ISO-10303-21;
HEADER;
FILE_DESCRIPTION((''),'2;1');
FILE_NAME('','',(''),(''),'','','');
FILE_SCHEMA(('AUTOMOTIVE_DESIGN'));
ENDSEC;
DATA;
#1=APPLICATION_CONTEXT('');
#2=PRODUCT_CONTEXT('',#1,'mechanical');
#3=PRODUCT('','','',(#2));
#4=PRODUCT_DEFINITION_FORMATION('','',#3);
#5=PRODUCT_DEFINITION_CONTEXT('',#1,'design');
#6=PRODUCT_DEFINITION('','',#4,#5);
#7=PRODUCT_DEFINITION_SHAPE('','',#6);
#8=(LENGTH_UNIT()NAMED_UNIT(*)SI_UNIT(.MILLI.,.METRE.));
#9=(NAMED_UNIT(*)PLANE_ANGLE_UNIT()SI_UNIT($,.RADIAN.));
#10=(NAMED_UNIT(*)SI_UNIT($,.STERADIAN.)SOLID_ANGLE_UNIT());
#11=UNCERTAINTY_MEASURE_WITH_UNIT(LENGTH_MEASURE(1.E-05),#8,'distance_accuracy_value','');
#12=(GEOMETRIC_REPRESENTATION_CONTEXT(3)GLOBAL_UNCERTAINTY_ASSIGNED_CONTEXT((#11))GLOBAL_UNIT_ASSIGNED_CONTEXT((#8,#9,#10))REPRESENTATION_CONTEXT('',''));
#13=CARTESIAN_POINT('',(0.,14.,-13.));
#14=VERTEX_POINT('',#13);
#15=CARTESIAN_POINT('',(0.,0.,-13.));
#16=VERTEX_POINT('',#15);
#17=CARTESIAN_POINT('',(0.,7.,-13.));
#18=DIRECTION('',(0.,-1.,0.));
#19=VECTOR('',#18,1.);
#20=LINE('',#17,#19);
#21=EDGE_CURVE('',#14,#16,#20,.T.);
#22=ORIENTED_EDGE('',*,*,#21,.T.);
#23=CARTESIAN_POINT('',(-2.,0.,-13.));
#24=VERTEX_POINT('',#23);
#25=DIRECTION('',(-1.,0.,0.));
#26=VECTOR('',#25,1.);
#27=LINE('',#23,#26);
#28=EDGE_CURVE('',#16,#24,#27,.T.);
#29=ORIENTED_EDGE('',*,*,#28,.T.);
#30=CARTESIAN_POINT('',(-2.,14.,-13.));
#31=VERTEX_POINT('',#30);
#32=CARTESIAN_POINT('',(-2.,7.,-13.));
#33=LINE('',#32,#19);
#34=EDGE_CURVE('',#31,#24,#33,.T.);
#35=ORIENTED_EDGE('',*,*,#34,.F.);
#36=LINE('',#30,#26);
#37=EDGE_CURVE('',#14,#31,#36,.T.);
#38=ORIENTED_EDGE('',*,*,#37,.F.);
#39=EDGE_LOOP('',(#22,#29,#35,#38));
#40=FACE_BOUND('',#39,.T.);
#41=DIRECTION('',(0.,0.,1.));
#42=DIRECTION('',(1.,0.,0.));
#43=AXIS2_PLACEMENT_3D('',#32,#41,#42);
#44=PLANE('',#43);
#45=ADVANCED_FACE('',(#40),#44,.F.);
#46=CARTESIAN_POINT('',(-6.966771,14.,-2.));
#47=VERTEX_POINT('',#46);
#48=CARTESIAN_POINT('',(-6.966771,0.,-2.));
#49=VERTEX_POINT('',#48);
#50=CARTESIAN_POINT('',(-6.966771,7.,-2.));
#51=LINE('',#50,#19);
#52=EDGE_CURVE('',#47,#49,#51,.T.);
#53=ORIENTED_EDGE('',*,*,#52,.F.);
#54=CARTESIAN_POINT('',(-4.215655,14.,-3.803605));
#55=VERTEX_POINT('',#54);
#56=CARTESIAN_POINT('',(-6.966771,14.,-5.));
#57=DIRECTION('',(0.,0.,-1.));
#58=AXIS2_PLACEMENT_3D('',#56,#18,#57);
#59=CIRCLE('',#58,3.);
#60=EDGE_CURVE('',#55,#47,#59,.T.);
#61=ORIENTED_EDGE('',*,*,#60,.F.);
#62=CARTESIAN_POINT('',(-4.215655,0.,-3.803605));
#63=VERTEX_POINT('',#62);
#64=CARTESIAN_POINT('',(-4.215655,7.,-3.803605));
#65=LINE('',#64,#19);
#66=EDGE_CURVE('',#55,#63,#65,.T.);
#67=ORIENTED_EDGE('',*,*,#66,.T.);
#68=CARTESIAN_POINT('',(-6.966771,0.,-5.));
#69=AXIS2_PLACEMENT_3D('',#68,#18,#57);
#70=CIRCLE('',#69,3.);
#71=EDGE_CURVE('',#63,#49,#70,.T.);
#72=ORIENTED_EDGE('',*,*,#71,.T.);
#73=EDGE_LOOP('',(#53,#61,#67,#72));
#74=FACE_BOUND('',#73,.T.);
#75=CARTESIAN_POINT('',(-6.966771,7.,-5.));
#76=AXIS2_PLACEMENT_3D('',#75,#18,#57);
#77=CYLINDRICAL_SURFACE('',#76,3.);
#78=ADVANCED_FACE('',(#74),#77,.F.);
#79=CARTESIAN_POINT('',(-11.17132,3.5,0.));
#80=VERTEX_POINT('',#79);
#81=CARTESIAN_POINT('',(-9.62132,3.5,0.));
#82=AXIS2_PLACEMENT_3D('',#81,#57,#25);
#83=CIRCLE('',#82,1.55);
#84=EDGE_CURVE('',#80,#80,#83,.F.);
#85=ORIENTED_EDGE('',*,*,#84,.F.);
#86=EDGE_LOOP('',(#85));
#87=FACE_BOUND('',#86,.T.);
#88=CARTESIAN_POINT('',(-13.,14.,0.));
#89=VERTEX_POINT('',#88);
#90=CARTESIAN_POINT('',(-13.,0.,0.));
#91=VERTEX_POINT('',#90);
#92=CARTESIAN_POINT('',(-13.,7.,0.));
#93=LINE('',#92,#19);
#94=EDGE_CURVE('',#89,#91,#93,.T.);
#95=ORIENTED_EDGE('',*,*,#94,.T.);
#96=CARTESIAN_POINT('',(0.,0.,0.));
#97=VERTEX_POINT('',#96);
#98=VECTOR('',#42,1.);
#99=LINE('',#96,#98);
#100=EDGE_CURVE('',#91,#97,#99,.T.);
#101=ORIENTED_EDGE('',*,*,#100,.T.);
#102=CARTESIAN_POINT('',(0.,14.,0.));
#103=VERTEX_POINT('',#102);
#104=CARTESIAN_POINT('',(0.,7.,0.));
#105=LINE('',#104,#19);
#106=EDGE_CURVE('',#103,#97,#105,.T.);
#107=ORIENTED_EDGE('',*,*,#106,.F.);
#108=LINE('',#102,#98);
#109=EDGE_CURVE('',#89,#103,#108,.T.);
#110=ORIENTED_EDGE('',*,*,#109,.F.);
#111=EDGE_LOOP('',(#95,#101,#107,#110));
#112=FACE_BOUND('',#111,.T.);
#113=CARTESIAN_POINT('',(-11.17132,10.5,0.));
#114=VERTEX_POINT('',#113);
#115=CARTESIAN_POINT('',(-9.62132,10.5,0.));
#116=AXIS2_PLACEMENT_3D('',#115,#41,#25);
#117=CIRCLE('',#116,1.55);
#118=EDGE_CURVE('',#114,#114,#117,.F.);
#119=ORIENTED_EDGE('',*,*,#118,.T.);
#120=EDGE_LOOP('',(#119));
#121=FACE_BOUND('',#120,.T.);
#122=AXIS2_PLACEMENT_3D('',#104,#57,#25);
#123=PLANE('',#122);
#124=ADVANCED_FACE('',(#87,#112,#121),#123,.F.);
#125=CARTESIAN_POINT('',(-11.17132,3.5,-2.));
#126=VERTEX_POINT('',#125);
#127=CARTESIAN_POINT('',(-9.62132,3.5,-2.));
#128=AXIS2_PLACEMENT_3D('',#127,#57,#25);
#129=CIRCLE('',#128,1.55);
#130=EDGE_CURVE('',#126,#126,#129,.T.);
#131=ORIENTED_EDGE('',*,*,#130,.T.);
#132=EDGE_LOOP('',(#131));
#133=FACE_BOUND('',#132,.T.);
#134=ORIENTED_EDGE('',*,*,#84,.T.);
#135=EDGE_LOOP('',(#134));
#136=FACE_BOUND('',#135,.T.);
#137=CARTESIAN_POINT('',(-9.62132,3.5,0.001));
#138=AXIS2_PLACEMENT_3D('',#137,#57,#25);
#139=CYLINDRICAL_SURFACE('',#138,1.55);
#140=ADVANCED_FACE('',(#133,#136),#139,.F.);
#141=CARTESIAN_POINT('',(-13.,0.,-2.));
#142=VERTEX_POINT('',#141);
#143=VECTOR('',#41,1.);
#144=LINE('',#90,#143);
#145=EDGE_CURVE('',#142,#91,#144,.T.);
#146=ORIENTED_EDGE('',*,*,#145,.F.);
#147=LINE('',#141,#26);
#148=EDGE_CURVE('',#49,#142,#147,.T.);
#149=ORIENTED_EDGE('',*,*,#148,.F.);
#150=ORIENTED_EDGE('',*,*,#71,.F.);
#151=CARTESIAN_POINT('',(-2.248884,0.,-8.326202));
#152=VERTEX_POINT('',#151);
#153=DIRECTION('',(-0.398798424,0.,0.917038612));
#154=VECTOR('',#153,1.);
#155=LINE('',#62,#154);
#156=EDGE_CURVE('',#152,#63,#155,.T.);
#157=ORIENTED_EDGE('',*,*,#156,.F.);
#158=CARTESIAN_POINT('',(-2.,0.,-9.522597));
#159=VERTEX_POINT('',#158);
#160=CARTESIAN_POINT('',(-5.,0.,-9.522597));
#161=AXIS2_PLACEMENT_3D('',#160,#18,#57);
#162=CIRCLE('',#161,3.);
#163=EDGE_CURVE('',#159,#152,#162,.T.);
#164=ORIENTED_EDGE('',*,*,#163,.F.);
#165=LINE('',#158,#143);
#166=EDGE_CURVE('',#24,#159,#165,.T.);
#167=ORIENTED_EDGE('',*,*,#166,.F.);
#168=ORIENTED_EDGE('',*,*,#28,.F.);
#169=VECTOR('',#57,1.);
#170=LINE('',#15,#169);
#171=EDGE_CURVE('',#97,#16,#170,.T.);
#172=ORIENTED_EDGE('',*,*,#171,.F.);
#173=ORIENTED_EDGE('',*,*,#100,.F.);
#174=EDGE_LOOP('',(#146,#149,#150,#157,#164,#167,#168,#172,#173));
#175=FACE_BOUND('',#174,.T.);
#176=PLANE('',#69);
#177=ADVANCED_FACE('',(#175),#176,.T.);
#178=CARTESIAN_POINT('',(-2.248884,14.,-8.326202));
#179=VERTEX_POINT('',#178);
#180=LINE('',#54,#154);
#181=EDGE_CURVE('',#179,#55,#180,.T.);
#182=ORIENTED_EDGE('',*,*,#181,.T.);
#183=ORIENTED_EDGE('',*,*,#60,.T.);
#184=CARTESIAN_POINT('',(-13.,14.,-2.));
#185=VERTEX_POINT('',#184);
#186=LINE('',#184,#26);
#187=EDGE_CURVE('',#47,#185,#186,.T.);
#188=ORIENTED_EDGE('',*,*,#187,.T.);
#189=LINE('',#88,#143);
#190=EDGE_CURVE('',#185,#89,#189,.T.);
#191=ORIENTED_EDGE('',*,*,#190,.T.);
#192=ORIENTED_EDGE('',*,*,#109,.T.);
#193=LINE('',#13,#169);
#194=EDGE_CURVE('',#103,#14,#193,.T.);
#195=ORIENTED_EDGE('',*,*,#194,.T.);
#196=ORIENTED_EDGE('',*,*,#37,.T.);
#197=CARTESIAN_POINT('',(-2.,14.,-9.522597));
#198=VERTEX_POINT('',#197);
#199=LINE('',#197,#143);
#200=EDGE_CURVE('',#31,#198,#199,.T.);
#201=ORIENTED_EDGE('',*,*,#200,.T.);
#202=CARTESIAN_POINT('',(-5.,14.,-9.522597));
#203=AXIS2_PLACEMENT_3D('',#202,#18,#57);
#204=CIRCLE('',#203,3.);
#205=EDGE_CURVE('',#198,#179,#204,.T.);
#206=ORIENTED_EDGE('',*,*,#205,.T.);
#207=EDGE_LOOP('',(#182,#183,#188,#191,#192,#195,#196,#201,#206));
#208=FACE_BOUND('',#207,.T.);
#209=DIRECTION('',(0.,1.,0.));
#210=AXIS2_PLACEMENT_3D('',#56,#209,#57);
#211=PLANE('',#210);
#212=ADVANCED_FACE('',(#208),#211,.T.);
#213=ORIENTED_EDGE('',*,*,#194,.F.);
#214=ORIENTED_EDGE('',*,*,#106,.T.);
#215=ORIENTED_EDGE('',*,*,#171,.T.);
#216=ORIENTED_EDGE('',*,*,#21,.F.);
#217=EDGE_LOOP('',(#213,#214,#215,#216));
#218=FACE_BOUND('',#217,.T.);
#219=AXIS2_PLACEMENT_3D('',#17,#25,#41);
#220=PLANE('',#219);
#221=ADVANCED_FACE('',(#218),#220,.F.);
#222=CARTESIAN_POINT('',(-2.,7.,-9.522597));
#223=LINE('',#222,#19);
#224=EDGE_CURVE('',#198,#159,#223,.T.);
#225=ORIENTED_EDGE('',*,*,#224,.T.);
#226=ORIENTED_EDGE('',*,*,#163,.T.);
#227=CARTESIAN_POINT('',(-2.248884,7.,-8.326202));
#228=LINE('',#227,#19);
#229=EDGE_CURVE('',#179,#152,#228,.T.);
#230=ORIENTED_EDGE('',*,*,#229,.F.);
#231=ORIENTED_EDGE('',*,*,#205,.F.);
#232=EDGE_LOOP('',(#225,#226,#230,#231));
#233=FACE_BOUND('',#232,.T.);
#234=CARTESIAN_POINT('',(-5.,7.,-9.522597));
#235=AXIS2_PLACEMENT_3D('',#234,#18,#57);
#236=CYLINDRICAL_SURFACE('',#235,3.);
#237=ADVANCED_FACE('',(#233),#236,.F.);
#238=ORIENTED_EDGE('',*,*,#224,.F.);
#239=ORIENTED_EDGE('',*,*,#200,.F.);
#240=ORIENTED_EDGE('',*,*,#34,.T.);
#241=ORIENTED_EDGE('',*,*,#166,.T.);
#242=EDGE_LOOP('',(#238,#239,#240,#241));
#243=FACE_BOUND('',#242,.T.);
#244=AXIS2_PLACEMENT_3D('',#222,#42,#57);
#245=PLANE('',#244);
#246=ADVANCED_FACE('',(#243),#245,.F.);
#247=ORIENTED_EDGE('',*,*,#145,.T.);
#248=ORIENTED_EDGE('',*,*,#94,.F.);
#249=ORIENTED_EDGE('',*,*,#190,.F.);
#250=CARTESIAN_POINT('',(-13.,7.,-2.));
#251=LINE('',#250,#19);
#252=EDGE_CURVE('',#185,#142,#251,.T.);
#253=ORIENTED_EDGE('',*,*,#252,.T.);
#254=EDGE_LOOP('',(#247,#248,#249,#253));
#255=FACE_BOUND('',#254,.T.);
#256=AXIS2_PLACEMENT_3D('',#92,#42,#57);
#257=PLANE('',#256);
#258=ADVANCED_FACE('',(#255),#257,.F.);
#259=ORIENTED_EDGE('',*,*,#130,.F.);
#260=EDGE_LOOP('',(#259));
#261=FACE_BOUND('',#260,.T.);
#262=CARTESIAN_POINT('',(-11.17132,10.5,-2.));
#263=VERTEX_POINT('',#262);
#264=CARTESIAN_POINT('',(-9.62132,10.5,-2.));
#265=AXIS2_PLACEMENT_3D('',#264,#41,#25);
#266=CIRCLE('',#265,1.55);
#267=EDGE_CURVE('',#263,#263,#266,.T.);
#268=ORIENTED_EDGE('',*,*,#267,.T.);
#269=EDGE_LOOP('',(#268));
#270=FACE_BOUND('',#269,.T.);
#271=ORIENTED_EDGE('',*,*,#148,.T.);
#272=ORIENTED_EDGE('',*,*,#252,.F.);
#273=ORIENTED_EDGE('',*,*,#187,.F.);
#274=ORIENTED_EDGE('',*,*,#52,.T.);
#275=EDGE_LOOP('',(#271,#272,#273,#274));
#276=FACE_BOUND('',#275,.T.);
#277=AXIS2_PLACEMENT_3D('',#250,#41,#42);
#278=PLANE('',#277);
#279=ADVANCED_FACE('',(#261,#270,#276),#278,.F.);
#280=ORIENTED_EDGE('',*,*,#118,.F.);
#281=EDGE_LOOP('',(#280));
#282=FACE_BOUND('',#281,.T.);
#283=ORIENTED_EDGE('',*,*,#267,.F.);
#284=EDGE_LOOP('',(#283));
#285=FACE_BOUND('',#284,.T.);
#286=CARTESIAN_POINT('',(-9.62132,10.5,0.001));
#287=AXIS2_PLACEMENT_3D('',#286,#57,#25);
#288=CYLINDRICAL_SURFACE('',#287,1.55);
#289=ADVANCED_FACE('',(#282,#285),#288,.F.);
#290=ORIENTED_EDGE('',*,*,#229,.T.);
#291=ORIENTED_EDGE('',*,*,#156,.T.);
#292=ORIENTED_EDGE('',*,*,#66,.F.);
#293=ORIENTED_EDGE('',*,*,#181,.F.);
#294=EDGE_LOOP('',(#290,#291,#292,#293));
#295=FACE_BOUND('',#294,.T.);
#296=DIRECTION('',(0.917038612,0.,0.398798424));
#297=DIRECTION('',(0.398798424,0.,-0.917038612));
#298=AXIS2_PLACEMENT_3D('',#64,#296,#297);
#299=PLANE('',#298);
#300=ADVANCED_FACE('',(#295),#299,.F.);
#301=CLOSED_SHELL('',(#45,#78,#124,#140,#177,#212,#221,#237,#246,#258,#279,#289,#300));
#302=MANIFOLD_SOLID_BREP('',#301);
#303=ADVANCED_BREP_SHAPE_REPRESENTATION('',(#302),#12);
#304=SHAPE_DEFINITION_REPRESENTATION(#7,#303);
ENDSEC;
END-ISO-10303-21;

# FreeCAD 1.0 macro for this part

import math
import FreeCAD as App
import Part
import Sketcher

V = App.Vector
Q = App.Units.Quantity

doc = App.newDocument("Part")
body = doc.addObject("PartDesign::Body", "Body")

sketch1 = body.newObject("Sketcher::SketchObject", "Sketch")
sketch1.AttachmentSupport = (doc.getObject("XZ_Plane"), [""])
sketch1.MapMode = "FlatFace"
sketch1.addGeometry([
    Part.LineSegment(V(-13, 0, 0), V(0, 0, 0)),
    Part.LineSegment(V(0, 0, 0), V(0, -13, 0)),
    Part.LineSegment(V(0, -13, 0), V(-2, -13, 0)),
    Part.LineSegment(V(-2, -13, 0), V(-2, -9.522597, 0)),
    Part.ArcOfCircle(Part.Circle(V(-5, -9.522597, 0), V(0, 0, 1), 3), math.radians(0), math.radians(23.503084)),
    Part.LineSegment(V(-2.248884, -8.326202, 0), V(-4.215655, -3.803605, 0)),
    Part.ArcOfCircle(Part.Circle(V(-6.966771, -5, 0), V(0, 0, 1), 3), math.radians(23.503084), math.radians(90)),
    Part.LineSegment(V(-6.966771, -2, 0), V(-13, -2, 0)),
    Part.LineSegment(V(-13, -2, 0), V(-13, 0, 0)),
], False)
sketch1.addConstraint([
    Sketcher.Constraint("Coincident", 0, 2, 1, 1),
    Sketcher.Constraint("Coincident", 1, 2, 2, 1),
    Sketcher.Constraint("Coincident", 2, 2, 3, 1),
    Sketcher.Constraint("Tangent", 3, 2, 4, 1),
    Sketcher.Constraint("Tangent", 4, 2, 5, 1),
    Sketcher.Constraint("Tangent", 5, 2, 6, 1),
    Sketcher.Constraint("Tangent", 6, 2, 7, 1),
    Sketcher.Constraint("Coincident", 7, 2, 8, 1),
    Sketcher.Constraint("Coincident", 8, 2, 0, 1),
    Sketcher.Constraint("Horizontal", 0),
    Sketcher.Constraint("Vertical", 1),
    Sketcher.Constraint("Horizontal", 2),
    Sketcher.Constraint("Vertical", 3),
    Sketcher.Constraint("Horizontal", 7),
    Sketcher.Constraint("Vertical", 8),
    Sketcher.Constraint("Coincident", 0, 2, -1, 1),
    Sketcher.Constraint("Equal", 4, 6),
    Sketcher.Constraint("Equal", 0, 1),
    Sketcher.Constraint("Equal", 2, 8),
    Sketcher.Constraint("Radius", 4, Q("3 mm")),
    Sketcher.Constraint("DistanceX", 0, 1, 0, 2, Q("13 mm")),
    Sketcher.Constraint("DistanceX", 2, 2, 2, 1, Q("2 mm")),
    Sketcher.Constraint("DistanceX", 7, 2, 7, 1, Q("6.033229 mm")),
    Sketcher.Constraint("Distance", 5, Q("4.931742 mm")),
])
pad1 = body.newObject("PartDesign::Pad", "Pad")
pad1.Profile = sketch1
pad1.Length = 7
pad1.Reversed = True

sketch2 = body.newObject("Sketcher::SketchObject", "Sketch001")
sketch2.AttachmentSupport = (doc.getObject("XY_Plane"), [""])
sketch2.MapMode = "FlatFace"
sketch2.AttachmentOffset = App.Placement(V(0, 0, -2), App.Rotation())
sketch2.addGeometry(Part.Circle(V(-9.62132, 3.5, 0), V(0, 0, 1), 1.55), False)
sketch2.addConstraint([
    Sketcher.Constraint("Diameter", 0, Q("3.1 mm")),
    Sketcher.Constraint("DistanceY", -1, 1, 0, 3, Q("3.5 mm")),
    Sketcher.Constraint("DistanceX", 0, 3, -1, 1, Q("9.62132 mm")),
])
pocket1 = body.newObject("PartDesign::Pocket", "Pocket")
pocket1.Profile = sketch2
pocket1.Type = "UpToFirst"
pocket1.Reversed = True
body2 = doc.addObject("PartDesign::Body", "Body001")
doc.recompute()

body2.BaseFeature = body
doc.recompute()

mirroring = doc.addObject("Part::Mirroring", "Mirroring")
mirroring.Source = body
mirroring.Base = V(-6.966771, 7, -5)
mirroring.Normal = V(0, -1, 0)
body3 = doc.addObject("PartDesign::Body", "Body002")
body3.BaseFeature = mirroring
boolean = body2.newObject("PartDesign::Boolean", "Boolean")
boolean.Type = "Fuse"
boolean.addObjects([body3])
doc.recompute()
mirroring.Visibility = False

doc.recompute()
